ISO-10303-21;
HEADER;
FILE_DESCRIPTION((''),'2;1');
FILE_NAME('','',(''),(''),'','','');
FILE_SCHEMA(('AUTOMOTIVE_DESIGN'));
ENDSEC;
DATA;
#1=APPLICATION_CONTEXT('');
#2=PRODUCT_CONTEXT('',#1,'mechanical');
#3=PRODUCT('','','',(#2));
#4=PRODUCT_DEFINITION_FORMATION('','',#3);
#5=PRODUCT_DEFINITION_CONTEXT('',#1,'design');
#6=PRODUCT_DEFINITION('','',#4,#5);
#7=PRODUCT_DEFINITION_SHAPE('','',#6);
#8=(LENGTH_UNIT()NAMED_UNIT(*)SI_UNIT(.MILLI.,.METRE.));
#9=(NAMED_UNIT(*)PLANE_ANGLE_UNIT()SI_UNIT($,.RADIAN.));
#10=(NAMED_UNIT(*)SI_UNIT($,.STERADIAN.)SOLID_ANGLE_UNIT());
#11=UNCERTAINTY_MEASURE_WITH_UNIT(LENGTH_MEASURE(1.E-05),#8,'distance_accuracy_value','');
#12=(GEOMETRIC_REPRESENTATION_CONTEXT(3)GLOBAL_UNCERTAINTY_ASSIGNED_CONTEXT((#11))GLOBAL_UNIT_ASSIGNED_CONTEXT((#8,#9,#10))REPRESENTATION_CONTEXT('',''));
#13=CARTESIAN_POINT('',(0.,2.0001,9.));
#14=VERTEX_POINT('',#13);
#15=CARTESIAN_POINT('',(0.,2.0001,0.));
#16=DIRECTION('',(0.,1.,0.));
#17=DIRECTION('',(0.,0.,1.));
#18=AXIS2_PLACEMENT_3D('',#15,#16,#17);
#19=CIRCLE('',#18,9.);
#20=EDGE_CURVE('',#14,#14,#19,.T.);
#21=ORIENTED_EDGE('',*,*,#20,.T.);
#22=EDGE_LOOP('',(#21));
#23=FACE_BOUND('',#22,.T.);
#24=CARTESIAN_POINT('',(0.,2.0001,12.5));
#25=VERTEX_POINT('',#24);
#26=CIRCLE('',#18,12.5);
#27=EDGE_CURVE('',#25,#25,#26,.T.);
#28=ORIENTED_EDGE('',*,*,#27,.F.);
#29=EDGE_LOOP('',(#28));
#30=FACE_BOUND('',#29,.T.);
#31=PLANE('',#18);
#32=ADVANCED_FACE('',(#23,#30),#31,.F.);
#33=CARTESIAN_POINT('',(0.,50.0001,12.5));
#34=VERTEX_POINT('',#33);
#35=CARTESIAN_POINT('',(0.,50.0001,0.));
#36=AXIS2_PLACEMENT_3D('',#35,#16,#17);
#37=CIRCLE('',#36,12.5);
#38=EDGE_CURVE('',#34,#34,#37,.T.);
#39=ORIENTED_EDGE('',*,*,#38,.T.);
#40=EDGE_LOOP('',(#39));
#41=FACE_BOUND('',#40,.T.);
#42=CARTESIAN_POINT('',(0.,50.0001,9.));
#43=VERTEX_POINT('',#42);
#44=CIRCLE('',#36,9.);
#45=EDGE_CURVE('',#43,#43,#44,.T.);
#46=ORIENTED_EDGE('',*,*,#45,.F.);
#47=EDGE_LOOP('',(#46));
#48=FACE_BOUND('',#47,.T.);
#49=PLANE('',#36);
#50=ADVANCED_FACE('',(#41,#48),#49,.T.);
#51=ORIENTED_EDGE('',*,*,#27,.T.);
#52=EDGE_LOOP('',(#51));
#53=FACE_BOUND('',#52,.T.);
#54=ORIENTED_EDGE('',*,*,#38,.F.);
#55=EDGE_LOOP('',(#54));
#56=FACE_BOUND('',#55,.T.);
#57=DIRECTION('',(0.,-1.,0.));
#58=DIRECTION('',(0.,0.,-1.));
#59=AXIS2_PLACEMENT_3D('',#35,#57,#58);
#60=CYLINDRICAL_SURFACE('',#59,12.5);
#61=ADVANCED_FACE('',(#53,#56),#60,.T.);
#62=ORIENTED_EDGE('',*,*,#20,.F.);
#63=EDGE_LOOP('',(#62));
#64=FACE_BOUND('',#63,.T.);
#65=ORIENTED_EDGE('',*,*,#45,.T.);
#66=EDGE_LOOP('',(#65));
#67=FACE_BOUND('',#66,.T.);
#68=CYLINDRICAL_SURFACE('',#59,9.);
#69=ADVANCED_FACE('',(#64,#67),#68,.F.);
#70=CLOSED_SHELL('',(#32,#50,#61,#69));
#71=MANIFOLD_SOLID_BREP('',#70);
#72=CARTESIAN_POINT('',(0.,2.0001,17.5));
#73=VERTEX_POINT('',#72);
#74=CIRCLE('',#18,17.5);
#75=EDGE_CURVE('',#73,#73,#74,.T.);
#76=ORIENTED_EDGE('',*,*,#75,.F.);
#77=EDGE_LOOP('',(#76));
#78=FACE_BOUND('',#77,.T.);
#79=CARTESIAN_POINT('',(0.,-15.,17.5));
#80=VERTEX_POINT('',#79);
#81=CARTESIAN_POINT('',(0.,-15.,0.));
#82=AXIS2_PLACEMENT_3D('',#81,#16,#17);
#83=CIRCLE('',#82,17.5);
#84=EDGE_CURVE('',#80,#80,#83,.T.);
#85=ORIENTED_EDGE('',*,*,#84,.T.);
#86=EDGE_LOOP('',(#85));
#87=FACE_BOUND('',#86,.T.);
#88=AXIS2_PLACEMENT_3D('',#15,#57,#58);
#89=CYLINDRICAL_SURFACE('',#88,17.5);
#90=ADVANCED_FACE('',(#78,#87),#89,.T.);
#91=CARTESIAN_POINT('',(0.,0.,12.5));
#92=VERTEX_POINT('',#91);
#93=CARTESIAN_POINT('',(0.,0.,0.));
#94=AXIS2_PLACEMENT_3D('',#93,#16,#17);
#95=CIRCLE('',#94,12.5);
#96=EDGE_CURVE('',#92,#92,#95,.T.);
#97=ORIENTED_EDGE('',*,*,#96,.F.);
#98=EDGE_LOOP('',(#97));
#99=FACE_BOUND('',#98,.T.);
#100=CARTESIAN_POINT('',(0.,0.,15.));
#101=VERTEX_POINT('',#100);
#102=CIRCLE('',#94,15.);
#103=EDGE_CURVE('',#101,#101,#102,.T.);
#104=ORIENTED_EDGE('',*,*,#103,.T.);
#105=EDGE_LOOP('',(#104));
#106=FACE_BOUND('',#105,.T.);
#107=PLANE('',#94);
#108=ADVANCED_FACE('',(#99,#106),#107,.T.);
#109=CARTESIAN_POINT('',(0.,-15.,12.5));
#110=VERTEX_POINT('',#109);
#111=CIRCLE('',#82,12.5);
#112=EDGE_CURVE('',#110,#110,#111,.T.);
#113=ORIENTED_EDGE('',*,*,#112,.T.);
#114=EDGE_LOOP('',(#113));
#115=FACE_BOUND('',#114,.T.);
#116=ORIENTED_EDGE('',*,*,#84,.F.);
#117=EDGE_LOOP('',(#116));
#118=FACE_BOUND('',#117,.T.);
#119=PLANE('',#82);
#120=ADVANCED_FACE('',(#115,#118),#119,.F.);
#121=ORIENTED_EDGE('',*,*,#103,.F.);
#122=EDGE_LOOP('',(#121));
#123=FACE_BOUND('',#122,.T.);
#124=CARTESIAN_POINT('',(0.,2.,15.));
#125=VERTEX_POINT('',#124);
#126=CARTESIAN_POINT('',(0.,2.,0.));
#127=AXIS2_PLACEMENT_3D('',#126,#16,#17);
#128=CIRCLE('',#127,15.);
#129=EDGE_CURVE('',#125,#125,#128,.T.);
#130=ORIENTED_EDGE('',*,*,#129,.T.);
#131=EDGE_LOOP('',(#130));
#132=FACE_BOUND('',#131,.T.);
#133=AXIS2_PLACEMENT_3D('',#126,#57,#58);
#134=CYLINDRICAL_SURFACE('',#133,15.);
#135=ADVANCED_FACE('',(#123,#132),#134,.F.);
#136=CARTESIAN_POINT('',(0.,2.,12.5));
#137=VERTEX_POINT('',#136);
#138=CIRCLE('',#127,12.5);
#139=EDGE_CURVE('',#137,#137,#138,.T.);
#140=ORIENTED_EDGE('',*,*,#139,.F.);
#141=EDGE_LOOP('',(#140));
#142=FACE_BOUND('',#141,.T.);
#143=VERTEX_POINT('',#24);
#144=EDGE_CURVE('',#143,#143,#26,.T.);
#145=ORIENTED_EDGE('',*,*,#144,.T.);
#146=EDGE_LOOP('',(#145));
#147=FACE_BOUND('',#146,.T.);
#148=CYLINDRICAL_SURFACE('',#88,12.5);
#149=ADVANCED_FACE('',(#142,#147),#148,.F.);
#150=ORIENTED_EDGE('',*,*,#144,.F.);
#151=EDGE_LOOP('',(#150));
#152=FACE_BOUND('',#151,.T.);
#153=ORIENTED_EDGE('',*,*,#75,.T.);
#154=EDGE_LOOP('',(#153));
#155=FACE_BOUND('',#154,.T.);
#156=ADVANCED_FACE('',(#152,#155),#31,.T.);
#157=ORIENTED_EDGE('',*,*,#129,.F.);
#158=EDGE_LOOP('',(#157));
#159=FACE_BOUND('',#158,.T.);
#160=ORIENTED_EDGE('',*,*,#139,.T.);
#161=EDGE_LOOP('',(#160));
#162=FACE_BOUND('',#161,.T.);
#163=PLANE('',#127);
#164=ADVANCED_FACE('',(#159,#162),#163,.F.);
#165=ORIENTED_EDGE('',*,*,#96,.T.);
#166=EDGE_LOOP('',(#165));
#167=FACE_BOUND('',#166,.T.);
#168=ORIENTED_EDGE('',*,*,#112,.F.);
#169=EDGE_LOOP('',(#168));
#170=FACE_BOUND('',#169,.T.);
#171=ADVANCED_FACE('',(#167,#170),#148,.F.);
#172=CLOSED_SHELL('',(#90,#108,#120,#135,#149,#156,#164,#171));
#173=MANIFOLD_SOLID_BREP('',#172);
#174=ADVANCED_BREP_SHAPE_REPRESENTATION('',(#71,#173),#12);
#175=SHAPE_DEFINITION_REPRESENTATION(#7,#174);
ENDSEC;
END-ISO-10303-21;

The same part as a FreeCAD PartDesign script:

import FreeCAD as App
import Part
import Sketcher

V = App.Vector
Q = App.Units.Quantity

doc = App.newDocument("Part")
body = doc.addObject("PartDesign::Body", "Body")

# Sketch on XZ plane
sketch1 = body.newObject("Sketcher::SketchObject", "Sketch")
sketch1.AttachmentSupport = (doc.getObject("XZ_Plane"), [""])
sketch1.MapMode = "FlatFace"
sketch1.addGeometry([
    Part.Circle(V(0, 0, 0), V(0, 0, 1), 18),
    Part.Circle(V(0, 0, 0), V(0, 0, 1), 12),
], False)
sketch1.addConstraint([
    Sketcher.Constraint("Coincident", 0, 3, -1, 1),
    Sketcher.Constraint("Coincident", 1, 3, -1, 1),
    Sketcher.Constraint("Diameter", 0, Q("35 mm")),
    Sketcher.Constraint("Diameter", 1, Q("25 mm")),
])
pad1 = body.newObject("PartDesign::Pad", "Pad")
pad1.Profile = sketch1
pad1.Type = "TwoLengths"
pad1.Length = 2.0001
pad1.Length2 = 15
pad1.Reversed = True

# Sketch on XZ plane
sketch2 = body.newObject("Sketcher::SketchObject", "Sketch001")
sketch2.AttachmentSupport = (doc.getObject("XZ_Plane"), [""])
sketch2.MapMode = "FlatFace"
sketch2.addGeometry(Part.Circle(V(0, 0, 0), V(0, 0, 1), 15), False)
sketch2.addConstraint([
    Sketcher.Constraint("Coincident", 0, 3, -1, 1),
    Sketcher.Constraint("Diameter", 0, Q("30 mm")),
])
pocket1 = body.newObject("PartDesign::Pocket", "Pocket")
pocket1.Profile = sketch2
pocket1.Length = 2
body2 = doc.addObject("PartDesign::Body", "Body001")

# Sketch on XZ plane
sketch3 = body2.newObject("Sketcher::SketchObject", "Sketch002")
sketch3.AttachmentSupport = (doc.getObject("XZ_Plane001"), [""])
sketch3.MapMode = "FlatFace"
sketch3.AttachmentOffset = App.Placement(V(0, 0, -2.0001), App.Rotation())
sketch3.addGeometry(Part.Circle(V(0, 0, 0), V(0, 0, 1), 12), False)
sketch3.addConstraint([
    Sketcher.Constraint("Coincident", 0, 3, -1, 1),
    Sketcher.Constraint("Diameter", 0, Q("25 mm")),
])
pad2 = body2.newObject("PartDesign::Pad", "Pad001")
pad2.Profile = sketch3
pad2.Length = 48
pad2.Reversed = True

# Sketch on XZ plane
sketch4 = body2.newObject("Sketcher::SketchObject", "Sketch003")
sketch4.AttachmentSupport = (doc.getObject("XZ_Plane001"), [""])
sketch4.MapMode = "FlatFace"
sketch4.AttachmentOffset = App.Placement(V(0, 0, -2.0001), App.Rotation())
sketch4.addGeometry(Part.Circle(V(0, 0, 0), V(0, 0, 1), 9), False)
sketch4.addConstraint([
    Sketcher.Constraint("Coincident", 0, 3, -1, 1),
    Sketcher.Constraint("Diameter", 0, Q("18 mm")),
])
pocket2 = body2.newObject("PartDesign::Pocket", "Pocket001")
pocket2.Profile = sketch4
pocket2.Length = 48

doc.recompute()
